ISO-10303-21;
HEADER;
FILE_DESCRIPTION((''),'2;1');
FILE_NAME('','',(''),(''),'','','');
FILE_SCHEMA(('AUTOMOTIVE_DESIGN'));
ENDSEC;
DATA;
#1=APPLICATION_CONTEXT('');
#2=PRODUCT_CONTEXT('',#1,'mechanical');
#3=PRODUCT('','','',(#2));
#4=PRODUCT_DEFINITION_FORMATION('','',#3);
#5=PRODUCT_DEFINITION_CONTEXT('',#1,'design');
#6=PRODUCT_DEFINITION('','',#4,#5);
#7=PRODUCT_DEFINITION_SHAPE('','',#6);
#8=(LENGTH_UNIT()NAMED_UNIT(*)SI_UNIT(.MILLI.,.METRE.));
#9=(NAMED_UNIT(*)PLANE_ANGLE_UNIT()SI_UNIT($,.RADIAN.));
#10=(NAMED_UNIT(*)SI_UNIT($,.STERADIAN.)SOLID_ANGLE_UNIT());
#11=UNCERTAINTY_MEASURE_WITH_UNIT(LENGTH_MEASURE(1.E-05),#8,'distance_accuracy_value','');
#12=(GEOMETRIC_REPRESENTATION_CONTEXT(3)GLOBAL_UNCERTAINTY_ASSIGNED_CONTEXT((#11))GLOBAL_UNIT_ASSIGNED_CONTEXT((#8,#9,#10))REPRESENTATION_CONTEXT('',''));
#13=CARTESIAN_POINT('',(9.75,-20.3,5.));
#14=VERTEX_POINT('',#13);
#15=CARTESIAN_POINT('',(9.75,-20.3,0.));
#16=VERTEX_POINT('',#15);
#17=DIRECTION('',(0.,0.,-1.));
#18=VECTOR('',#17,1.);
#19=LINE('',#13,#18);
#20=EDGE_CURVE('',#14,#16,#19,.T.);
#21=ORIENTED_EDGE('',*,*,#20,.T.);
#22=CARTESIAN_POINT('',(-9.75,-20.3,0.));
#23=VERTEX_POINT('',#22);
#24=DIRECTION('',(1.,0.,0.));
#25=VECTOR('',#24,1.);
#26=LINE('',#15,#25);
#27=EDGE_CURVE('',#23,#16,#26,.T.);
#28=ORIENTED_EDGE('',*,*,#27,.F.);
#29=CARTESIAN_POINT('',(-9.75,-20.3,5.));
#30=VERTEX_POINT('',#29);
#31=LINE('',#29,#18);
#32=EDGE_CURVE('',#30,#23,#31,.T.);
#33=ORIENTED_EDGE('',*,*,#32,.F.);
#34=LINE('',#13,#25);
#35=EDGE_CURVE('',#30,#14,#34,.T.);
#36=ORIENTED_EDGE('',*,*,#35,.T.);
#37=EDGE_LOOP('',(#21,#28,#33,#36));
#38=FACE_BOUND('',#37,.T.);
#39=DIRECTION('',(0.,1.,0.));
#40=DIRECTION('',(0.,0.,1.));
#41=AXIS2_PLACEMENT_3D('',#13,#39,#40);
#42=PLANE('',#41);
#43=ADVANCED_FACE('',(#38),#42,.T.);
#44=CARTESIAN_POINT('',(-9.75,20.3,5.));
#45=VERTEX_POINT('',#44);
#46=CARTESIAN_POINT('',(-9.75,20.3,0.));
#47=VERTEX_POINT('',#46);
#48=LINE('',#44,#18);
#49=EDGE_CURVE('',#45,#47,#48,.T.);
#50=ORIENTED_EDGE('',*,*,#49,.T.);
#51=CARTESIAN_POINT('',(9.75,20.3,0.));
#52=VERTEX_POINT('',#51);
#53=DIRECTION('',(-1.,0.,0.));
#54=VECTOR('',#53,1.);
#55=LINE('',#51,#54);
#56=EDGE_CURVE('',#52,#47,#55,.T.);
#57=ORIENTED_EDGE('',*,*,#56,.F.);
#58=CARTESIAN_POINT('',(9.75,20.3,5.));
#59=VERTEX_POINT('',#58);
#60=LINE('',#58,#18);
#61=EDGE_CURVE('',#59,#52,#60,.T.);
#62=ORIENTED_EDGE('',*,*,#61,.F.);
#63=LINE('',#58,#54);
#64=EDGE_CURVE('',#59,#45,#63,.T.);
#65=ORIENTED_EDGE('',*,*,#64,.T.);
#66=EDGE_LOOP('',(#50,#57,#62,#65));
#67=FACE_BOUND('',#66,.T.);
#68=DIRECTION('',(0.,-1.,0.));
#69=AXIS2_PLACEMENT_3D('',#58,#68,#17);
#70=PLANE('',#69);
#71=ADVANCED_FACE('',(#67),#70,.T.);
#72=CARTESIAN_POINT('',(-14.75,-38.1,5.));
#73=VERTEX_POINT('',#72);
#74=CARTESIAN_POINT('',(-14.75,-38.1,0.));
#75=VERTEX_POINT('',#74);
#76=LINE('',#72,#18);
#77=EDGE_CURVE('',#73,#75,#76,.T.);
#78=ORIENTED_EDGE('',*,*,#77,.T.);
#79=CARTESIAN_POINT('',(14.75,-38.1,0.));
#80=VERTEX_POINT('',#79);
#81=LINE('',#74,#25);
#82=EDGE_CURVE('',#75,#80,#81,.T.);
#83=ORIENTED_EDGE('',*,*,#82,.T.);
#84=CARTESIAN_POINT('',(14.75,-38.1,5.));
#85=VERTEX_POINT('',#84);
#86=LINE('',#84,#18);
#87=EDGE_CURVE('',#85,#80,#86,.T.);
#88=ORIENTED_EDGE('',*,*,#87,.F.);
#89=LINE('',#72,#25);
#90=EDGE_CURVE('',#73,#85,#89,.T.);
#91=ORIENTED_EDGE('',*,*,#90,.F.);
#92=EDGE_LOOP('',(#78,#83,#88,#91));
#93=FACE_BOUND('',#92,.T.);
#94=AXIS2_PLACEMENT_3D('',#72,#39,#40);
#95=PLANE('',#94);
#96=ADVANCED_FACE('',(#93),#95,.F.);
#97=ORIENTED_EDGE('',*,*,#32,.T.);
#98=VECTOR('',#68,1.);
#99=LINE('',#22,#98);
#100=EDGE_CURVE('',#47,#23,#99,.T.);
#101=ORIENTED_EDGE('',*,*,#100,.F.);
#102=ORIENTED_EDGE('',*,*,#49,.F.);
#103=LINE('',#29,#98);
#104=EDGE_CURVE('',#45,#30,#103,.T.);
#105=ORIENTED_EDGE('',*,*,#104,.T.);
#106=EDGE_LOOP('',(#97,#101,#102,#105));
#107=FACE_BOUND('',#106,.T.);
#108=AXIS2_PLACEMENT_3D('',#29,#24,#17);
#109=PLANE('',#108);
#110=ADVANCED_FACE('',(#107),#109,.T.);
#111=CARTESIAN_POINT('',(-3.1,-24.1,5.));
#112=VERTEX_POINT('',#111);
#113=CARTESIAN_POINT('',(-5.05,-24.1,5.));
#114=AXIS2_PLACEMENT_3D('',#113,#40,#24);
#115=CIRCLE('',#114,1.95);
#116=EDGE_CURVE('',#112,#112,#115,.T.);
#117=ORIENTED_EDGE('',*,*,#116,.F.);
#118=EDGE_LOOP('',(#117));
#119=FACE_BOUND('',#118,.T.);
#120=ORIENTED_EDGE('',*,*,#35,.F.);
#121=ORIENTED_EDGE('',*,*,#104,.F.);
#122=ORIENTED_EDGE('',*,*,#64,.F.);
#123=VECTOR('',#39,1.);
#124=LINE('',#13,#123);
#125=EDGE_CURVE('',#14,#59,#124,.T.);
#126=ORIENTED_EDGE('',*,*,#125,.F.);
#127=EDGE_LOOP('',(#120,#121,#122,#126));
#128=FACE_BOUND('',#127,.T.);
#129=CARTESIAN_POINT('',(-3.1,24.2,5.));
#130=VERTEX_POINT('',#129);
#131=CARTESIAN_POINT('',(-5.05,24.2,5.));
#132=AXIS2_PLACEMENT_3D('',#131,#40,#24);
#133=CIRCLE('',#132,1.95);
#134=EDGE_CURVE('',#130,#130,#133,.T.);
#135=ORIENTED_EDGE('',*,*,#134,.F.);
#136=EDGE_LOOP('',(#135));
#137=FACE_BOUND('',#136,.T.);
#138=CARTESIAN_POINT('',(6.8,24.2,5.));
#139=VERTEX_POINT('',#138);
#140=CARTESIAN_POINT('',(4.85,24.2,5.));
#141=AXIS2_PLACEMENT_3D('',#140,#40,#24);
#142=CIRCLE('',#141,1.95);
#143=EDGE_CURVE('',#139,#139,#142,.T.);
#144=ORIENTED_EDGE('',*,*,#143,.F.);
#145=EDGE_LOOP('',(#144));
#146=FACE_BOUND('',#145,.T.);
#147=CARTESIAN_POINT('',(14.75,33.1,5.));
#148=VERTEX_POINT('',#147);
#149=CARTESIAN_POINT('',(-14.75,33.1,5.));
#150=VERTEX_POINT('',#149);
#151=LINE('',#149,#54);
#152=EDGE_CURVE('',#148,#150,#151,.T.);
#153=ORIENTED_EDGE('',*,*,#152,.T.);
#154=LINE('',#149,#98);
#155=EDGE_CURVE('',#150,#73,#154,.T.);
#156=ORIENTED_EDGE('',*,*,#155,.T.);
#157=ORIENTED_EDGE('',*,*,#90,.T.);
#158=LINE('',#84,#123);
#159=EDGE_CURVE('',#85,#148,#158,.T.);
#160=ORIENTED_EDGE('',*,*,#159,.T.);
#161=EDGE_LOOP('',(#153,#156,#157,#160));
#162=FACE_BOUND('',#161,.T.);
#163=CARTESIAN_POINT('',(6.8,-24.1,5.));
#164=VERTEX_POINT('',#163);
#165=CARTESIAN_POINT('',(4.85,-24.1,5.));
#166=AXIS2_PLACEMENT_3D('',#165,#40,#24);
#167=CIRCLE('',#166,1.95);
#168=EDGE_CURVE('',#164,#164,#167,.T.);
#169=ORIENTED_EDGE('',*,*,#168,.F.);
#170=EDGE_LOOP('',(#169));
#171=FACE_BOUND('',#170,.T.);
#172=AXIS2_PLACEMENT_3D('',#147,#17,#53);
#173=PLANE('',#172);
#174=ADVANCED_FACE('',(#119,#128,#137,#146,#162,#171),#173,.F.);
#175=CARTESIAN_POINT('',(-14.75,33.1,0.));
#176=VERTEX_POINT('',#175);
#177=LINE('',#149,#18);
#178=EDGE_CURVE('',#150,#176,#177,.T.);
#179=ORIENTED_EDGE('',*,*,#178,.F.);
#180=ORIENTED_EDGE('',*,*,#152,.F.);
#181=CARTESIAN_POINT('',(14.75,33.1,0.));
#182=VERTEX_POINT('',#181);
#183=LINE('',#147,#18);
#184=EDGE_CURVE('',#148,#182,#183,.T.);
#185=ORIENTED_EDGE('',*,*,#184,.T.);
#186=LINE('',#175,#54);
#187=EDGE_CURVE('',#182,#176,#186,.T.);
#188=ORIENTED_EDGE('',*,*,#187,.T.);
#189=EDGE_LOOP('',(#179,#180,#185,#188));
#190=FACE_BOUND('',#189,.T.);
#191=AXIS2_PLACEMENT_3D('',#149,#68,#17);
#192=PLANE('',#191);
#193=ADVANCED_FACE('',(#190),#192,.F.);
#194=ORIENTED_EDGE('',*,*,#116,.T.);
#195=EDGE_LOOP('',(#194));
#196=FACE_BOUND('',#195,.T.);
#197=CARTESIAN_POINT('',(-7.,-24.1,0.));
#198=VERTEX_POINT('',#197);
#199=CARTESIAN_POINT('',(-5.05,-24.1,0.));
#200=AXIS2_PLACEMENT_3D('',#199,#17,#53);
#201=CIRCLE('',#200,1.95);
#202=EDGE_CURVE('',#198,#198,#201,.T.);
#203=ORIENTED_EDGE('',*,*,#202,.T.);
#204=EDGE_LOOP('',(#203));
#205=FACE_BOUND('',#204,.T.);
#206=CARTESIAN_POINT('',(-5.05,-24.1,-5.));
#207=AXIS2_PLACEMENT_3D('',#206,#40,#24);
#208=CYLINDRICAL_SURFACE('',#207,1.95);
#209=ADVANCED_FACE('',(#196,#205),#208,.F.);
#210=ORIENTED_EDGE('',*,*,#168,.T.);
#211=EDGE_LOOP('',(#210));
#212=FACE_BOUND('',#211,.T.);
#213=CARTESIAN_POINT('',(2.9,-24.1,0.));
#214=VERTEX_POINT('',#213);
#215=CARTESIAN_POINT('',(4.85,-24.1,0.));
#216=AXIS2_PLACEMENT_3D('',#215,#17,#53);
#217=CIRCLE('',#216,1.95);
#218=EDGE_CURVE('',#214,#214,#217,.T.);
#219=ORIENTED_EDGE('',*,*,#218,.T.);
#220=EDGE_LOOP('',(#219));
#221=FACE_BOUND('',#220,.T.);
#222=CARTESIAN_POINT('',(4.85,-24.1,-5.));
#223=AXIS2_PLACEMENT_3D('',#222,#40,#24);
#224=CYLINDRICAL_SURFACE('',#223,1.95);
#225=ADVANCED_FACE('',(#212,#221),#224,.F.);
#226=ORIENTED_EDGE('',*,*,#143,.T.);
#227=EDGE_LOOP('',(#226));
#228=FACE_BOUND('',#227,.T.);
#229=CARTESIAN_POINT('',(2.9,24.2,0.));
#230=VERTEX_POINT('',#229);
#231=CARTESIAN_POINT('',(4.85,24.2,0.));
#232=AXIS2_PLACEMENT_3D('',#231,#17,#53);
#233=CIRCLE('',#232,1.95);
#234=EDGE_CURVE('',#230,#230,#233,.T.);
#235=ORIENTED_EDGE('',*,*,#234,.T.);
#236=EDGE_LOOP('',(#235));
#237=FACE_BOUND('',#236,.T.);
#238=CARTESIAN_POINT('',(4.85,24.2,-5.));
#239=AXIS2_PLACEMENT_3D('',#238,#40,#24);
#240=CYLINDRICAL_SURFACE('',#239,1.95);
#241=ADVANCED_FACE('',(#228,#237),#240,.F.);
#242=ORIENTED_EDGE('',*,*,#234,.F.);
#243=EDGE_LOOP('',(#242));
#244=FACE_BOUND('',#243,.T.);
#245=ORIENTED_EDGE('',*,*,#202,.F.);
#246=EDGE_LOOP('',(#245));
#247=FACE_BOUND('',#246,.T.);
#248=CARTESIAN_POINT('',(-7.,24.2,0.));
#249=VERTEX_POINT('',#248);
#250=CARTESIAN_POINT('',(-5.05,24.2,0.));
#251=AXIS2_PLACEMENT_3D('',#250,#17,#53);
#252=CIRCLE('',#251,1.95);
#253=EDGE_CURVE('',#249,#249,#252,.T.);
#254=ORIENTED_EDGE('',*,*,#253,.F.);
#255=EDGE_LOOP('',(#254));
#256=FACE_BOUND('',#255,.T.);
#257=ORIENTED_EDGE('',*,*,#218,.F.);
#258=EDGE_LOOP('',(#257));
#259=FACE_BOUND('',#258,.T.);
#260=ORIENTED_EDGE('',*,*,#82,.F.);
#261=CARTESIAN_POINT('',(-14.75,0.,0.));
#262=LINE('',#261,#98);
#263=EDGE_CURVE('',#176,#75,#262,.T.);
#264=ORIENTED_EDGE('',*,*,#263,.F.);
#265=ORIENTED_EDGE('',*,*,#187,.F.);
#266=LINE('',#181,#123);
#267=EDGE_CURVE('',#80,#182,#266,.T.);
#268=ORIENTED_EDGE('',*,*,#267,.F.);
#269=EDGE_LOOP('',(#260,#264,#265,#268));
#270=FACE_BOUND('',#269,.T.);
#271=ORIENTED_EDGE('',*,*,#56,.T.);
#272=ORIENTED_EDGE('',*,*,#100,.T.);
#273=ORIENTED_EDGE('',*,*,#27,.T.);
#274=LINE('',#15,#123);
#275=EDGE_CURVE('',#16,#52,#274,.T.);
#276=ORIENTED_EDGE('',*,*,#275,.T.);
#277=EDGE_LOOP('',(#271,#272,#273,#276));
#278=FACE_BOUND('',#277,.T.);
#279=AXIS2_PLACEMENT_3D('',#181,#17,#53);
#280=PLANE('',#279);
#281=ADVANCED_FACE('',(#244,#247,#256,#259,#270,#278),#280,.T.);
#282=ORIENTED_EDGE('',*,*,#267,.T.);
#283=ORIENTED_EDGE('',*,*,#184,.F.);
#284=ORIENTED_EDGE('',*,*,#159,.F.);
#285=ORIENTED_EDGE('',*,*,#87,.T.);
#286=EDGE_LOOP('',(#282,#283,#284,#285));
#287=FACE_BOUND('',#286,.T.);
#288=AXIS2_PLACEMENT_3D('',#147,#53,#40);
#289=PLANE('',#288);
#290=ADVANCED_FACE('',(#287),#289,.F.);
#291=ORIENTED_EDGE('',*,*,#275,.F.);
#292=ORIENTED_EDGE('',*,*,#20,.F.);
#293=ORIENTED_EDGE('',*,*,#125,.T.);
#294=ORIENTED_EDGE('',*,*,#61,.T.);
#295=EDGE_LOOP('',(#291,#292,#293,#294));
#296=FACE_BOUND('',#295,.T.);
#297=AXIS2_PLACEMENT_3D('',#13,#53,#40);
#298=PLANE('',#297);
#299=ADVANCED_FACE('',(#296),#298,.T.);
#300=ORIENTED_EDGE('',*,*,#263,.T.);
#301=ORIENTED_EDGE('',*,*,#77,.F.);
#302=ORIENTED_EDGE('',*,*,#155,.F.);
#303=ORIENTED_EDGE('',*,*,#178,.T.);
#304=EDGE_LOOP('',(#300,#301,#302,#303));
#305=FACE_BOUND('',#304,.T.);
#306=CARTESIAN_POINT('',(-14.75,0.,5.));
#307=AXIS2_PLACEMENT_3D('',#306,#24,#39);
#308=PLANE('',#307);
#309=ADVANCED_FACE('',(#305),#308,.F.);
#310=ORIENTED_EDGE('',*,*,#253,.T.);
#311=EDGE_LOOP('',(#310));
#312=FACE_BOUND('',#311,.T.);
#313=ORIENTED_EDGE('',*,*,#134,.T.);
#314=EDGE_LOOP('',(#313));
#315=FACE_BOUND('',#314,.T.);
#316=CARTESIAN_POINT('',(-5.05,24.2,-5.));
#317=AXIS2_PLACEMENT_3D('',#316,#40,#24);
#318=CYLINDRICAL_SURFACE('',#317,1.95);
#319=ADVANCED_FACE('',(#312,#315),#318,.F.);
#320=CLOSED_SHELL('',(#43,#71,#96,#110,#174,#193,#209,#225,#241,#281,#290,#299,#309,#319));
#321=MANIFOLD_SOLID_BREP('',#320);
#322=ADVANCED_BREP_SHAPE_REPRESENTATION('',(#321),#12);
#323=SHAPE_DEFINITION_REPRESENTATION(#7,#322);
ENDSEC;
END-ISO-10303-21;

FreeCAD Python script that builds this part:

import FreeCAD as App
import Part
import Sketcher


def add_polygon(sketch, points):
    """Adds a closed chain of lines whose ends are joined by coincident constraints."""
    first, n = sketch.GeometryCount, len(points)
    for a, b in zip(points, points[1:] + points[:1]):
        sketch.addGeometry(Part.LineSegment(App.Vector(*a, 0), App.Vector(*b, 0)), False)
    for i in range(n):
        sketch.addConstraint(Sketcher.Constraint("Coincident", first + i, 2, first + (i + 1) % n, 1))

doc = App.newDocument("Part")
body = doc.addObject("PartDesign::Body", "Body")

sketch1 = body.newObject("Sketcher::SketchObject", "Sketch")
sketch1.AttachmentSupport = (doc.getObject("XY_Plane"), [""])
sketch1.MapMode = "FlatFace"
add_polygon(sketch1, [(15, 33), (-15, 33), (-15, -38), (15, -38)])
add_polygon(sketch1, [(-10, -20), (-10, 20), (10, 20), (10, -20)])
sketch1.addConstraint([
    Sketcher.Constraint("Horizontal", 0),
    Sketcher.Constraint("Vertical", 1),
    Sketcher.Constraint("Horizontal", 2),
    Sketcher.Constraint("Vertical", 3),
    Sketcher.Constraint("Vertical", 4),
    Sketcher.Constraint("Horizontal", 5),
    Sketcher.Constraint("Vertical", 6),
    Sketcher.Constraint("Horizontal", 7),
    Sketcher.Constraint("Symmetric", 4, 2, 6, 2, -1, 1),
    Sketcher.Constraint("DistanceX", 0, 2, 0, 1, 29.5),
    Sketcher.Constraint("DistanceX", 5, 1, 5, 2, 19.5),
    Sketcher.Constraint("DistanceY", 1, 2, 1, 1, 71.2),
    Sketcher.Constraint("DistanceY", 4, 1, 4, 2, 40.6),
    Sketcher.Constraint("DistanceX", 0, 2, 4, 2, 5.0),
    Sketcher.Constraint("DistanceY", -1, 1, 0, 2, 33.1),
])
pad1 = body.newObject("PartDesign::Pad", "Pad")
pad1.Profile = sketch1
pad1.Length = 5

sketch2 = body.newObject("Sketcher::SketchObject", "Sketch001")
sketch2.AttachmentSupport = (doc.getObject("XY_Plane"), [""])
sketch2.MapMode = "FlatFace"
sketch2.AttachmentOffset = App.Placement(App.Vector(0, 0, 5), App.Rotation())
sketch2.addGeometry([
    Part.Circle(App.Vector(-5, 24.2, 0), App.Vector(0, 0, 1), 1.9),
    Part.Circle(App.Vector(4.8, 24.2, 0), App.Vector(0, 0, 1), 1.9),
    Part.Circle(App.Vector(-5, -24.1, 0), App.Vector(0, 0, 1), 1.9),
    Part.Circle(App.Vector(4.8, -24.1, 0), App.Vector(0, 0, 1), 1.9),
], False)
sketch2.addConstraint([
    Sketcher.Constraint("Equal", 0, 1),
    Sketcher.Constraint("Equal", 1, 2),
    Sketcher.Constraint("Equal", 2, 3),
    Sketcher.Constraint("Horizontal", 0, 3, 1, 3),
    Sketcher.Constraint("Horizontal", 2, 3, 3, 3),
    Sketcher.Constraint("Vertical", 0, 3, 2, 3),
    Sketcher.Constraint("Vertical", 1, 3, 3, 3),
    Sketcher.Constraint("Diameter", 0, 3.9),
    Sketcher.Constraint("DistanceY", -1, 1, 0, 3, 24.2),
    Sketcher.Constraint("DistanceY", 2, 3, -1, 1, 24.1),
    Sketcher.Constraint("DistanceX", 0, 3, 1, 3, 9.9),
    Sketcher.Constraint("DistanceX", 0, 3, -1, 1, 5.05),
])
pocket1 = body.newObject("PartDesign::Pocket", "Pocket")
pocket1.Profile = sketch2
pocket1.Length = 10

doc.recompute()
